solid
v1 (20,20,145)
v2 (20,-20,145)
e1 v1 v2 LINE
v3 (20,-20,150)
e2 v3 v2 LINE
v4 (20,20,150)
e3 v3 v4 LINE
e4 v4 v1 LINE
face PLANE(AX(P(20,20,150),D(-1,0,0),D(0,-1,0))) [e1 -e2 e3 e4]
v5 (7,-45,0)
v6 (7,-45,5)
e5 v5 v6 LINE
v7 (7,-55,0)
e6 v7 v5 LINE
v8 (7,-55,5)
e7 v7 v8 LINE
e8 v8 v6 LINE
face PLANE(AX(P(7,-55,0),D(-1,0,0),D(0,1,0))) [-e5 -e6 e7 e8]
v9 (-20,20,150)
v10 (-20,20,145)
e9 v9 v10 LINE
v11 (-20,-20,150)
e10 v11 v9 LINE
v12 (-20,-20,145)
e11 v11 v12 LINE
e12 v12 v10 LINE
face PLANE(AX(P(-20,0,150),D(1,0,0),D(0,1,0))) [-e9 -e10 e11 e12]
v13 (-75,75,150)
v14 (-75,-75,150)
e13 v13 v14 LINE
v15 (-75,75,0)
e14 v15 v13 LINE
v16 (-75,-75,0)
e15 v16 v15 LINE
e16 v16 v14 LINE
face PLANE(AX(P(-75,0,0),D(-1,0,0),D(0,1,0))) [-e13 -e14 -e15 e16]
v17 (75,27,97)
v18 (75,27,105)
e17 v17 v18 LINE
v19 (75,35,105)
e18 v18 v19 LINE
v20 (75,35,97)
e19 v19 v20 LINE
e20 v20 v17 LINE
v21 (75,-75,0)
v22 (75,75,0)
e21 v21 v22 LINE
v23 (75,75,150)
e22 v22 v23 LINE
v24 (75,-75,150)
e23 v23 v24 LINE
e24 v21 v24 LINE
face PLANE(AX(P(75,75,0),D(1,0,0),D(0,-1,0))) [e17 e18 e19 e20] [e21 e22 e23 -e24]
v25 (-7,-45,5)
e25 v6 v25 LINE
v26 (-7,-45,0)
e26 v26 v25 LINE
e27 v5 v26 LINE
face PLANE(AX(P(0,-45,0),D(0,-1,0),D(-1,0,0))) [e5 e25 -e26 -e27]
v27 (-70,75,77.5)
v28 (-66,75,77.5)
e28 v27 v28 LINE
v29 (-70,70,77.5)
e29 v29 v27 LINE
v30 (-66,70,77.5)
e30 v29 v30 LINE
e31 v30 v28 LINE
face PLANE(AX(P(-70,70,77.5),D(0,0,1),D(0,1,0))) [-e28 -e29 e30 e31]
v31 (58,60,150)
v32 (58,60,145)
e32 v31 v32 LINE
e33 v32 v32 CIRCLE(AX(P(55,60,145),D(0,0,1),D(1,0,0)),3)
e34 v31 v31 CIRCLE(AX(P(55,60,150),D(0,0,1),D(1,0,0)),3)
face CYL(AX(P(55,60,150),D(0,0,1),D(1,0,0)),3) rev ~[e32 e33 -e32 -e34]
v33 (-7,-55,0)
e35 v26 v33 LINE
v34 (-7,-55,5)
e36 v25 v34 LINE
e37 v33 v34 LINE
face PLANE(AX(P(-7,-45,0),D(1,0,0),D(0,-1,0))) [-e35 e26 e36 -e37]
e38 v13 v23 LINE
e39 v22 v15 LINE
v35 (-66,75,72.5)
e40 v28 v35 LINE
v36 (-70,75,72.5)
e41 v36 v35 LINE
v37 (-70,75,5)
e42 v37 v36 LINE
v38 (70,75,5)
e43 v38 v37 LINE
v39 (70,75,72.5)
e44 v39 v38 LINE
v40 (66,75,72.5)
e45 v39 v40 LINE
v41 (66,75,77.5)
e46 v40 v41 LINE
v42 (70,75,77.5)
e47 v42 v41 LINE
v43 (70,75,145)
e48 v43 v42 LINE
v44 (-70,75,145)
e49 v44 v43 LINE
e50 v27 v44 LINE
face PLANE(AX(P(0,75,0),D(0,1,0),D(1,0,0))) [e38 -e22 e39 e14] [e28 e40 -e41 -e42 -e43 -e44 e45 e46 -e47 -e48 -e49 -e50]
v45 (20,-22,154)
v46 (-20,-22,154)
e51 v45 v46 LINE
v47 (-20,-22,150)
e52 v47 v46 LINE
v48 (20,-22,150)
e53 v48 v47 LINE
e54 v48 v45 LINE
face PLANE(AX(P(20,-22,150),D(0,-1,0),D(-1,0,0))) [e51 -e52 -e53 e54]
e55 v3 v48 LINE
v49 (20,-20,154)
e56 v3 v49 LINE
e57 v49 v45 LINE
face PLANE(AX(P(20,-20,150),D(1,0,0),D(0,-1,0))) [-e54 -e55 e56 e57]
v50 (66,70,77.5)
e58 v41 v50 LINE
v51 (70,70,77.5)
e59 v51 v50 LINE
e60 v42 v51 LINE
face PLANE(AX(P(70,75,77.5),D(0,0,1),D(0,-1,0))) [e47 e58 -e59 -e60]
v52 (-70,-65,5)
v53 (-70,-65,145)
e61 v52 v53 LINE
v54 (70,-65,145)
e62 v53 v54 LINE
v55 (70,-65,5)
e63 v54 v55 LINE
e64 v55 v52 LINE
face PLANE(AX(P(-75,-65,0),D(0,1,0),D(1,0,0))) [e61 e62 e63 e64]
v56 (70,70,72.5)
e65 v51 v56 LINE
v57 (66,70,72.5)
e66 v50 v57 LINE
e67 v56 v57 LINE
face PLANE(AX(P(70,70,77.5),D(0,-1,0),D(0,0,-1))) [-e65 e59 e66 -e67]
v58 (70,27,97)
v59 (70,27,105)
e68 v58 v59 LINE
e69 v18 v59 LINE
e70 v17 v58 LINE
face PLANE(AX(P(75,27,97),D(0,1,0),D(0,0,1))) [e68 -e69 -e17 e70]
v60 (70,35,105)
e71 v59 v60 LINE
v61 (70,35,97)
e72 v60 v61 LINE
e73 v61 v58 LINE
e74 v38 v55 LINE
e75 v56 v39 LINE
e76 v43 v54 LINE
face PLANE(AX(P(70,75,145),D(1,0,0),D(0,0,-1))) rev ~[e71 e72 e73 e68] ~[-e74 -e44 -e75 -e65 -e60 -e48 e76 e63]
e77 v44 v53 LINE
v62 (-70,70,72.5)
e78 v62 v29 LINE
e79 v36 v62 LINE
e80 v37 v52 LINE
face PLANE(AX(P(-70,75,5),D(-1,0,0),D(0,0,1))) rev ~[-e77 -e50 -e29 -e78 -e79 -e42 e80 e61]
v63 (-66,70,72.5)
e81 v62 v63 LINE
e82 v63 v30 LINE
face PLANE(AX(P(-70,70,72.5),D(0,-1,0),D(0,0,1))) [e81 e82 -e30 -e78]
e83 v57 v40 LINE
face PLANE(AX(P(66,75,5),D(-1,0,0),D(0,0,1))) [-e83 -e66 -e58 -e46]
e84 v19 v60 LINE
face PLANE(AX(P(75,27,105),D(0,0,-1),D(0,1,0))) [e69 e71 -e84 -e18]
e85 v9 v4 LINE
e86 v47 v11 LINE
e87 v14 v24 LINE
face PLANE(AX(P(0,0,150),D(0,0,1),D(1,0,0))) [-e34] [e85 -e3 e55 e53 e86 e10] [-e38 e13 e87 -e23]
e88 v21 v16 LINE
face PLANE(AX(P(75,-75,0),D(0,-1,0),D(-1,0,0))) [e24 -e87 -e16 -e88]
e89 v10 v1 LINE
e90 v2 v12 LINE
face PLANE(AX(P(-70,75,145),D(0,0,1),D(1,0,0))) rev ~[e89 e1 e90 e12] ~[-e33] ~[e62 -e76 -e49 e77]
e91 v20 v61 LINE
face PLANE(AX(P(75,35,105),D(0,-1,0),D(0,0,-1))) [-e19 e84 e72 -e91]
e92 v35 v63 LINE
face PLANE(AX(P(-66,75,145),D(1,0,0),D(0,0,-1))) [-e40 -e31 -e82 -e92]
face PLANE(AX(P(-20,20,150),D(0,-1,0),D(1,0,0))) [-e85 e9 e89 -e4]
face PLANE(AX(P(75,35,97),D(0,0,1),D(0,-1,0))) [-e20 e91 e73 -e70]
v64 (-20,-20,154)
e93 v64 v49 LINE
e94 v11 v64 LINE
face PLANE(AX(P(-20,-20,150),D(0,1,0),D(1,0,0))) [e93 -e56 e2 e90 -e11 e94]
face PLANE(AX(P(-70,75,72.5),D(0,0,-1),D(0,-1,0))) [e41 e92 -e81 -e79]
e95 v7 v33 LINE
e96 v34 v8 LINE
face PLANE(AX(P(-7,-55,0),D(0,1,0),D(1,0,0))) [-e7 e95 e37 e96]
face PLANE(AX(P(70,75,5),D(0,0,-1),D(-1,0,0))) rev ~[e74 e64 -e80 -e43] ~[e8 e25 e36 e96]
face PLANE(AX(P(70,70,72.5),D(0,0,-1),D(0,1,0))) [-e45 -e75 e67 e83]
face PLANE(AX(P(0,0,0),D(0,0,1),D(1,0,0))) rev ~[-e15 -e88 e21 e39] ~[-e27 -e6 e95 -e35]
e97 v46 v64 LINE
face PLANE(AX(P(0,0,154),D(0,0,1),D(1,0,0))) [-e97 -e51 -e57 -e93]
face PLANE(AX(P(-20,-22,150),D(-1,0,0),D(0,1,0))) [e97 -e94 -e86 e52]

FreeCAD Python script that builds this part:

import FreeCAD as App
import Part
import Sketcher

V = App.Vector
Q = App.Units.Quantity


def add_polygon(sketch, points):
    """Adds a closed chain of lines whose ends are joined by coincident constraints."""
    first, n = sketch.GeometryCount, len(points)
    for a, b in zip(points, points[1:] + points[:1]):
        sketch.addGeometry(Part.LineSegment(App.Vector(*a, 0), App.Vector(*b, 0)), False)
    for i in range(n):
        sketch.addConstraint(Sketcher.Constraint("Coincident", first + i, 2, first + (i + 1) % n, 1))

doc = App.newDocument("Part")
params = doc.addObject("Spreadsheet::Sheet", "Params")
for row, (alias, value) in enumerate([
    ("sketch1_width", "150 mm"),
    ("pad1_length", "150 mm"),
    ("sketch2_width", "140 mm"),
    ("pocket1_length", "140 mm"),
    ("sketch3_diameter", "6 mm"),
    ("sketch3_width", "40 mm"),
    ("pocket2_length", "10 mm"),
    ("sketch4_width", "8 mm"),
    ("pocket3_length", "10 mm"),
    ("sketch5_width", "40 mm"),
    ("sketch5_height", "2 mm"),
    ("pad2_length", "4 mm"),
    ("sketch6_width", "5 mm"),
    ("pad3_length", "4 mm"),
    ("sketch7_width", "5 mm"),
    ("pad4_length", "4 mm"),
    ("sketch8_width", "14 mm"),
    ("sketch8_height", "10 mm"),
    ("pocket4_length", "10 mm"),
], start=1):
    params.set(f"A{row}", alias)
    params.set(f"B{row}", "=" + value)
    params.setAlias(f"B{row}", alias)

body = doc.addObject("PartDesign::Body", "Body")

# Sketch on XY plane
sketch1 = doc.addObject("Sketcher::SketchObject", "Sketch")
body.addObject(sketch1)
sketch1.AttachmentSupport = (doc.XY_Plane, [""])
sketch1.MapMode = "FlatFace"
add_polygon(sketch1, [(75, 75), (-75, 75), (-75, -75), (75, -75)])  # lines 0-3
sketch1.addConstraint([
    Sketcher.Constraint("Horizontal", 0),
    Sketcher.Constraint("Vertical", 1),
    Sketcher.Constraint("Horizontal", 2),
    Sketcher.Constraint("Vertical", 3),
    Sketcher.Constraint("Symmetric", 0, 2, 2, 2, -1, 1),
    Sketcher.Constraint("Equal", 2, 1),
    Sketcher.Constraint("DistanceX", 0, 2, 0, 1, Q("150 mm")),
])
sketch1.setExpression("Constraints[10]", "Params.sketch1_width")
pad1 = doc.addObject("PartDesign::Pad", "Pad")
body.addObject(pad1)
pad1.Profile = sketch1
pad1.setExpression("Length", "Params.pad1_length")

# Sketch on XZ plane
sketch2 = doc.addObject("Sketcher::SketchObject", "Sketch001")
body.addObject(sketch2)
sketch2.AttachmentSupport = (doc.XZ_Plane, [""])
sketch2.MapMode = "FlatFace"
sketch2.AttachmentOffset = App.Placement(V(0, 0, -75), App.Rotation())
add_polygon(sketch2, [(-70, 5), (-70, 145), (70, 145), (70, 5)])  # lines 0-3
sketch2.addConstraint([
    Sketcher.Constraint("Vertical", 0),
    Sketcher.Constraint("Horizontal", 1),
    Sketcher.Constraint("Vertical", 2),
    Sketcher.Constraint("Horizontal", 3),
    Sketcher.Constraint("Equal", 3, 0),
    Sketcher.Constraint("DistanceX", 1, 1, 1, 2, Q("140 mm")),
    Sketcher.Constraint("DistanceY", -1, 1, 2, 2, Q("5 mm")),
    Sketcher.Constraint("DistanceX", 0, 2, -1, 1, Q("70 mm")),
])
sketch2.setExpression("Constraints[9]", "Params.sketch2_width")
pocket1 = doc.addObject("PartDesign::Pocket", "Pocket")
body.addObject(pocket1)
pocket1.Profile = sketch2
pocket1.setExpression("Length", "Params.pocket1_length")
pocket1.Reversed = True

# Sketch on XY plane
sketch3 = doc.addObject("Sketcher::SketchObject", "Sketch002")
body.addObject(sketch3)
sketch3.AttachmentSupport = (doc.XY_Plane, [""])
sketch3.MapMode = "FlatFace"
sketch3.AttachmentOffset = App.Placement(V(0, 0, 150), App.Rotation())
add_polygon(sketch3, [(-20, 20), (-20, -20), (20, -20), (20, 20)])  # lines 0-3
sketch3.addGeometry(Part.Circle(V(55, 60, 0), V(0, 0, 1), 3), False)  # 4
sketch3.addConstraint([
    Sketcher.Constraint("Vertical", 0),
    Sketcher.Constraint("Horizontal", 1),
    Sketcher.Constraint("Vertical", 2),
    Sketcher.Constraint("Horizontal", 3),
    Sketcher.Constraint("Symmetric", 0, 2, 2, 2, -1, 1),
    Sketcher.Constraint("Equal", 3, 0),
    Sketcher.Constraint("Diameter", 4, Q("6 mm")),
    Sketcher.Constraint("DistanceX", 1, 1, 1, 2, Q("40 mm")),
    Sketcher.Constraint("DistanceX", -1, 1, 4, 3, Q("55 mm")),
    Sketcher.Constraint("DistanceY", 2, 2, 4, 3, Q("40 mm")),
])
sketch3.setExpression("Constraints[10]", "Params.sketch3_diameter")
sketch3.setExpression("Constraints[11]", "Params.sketch3_width")
pocket2 = doc.addObject("PartDesign::Pocket", "Pocket001")
body.addObject(pocket2)
pocket2.Profile = sketch3
pocket2.setExpression("Length", "Params.pocket2_length")

# Sketch on YZ plane
sketch4 = doc.addObject("Sketcher::SketchObject", "Sketch003")
body.addObject(sketch4)
sketch4.AttachmentSupport = (doc.YZ_Plane, [""])
sketch4.MapMode = "FlatFace"
sketch4.AttachmentOffset = App.Placement(V(0, 0, 75), App.Rotation())
add_polygon(sketch4, [(35, 97), (35, 105), (27, 105), (27, 97)])  # lines 0-3
sketch4.addConstraint([
    Sketcher.Constraint("Vertical", 0),
    Sketcher.Constraint("Horizontal", 1),
    Sketcher.Constraint("Vertical", 2),
    Sketcher.Constraint("Horizontal", 3),
    Sketcher.Constraint("Equal", 3, 0),
    Sketcher.Constraint("DistanceX", 1, 2, 1, 1, Q("8 mm")),
    Sketcher.Constraint("DistanceX", -1, 1, 0, 2, Q("35 mm")),
    Sketcher.Constraint("DistanceY", -1, 1, 0, 2, Q("105 mm")),
])
sketch4.setExpression("Constraints[9]", "Params.sketch4_width")
pocket3 = doc.addObject("PartDesign::Pocket", "Pocket002")
body.addObject(pocket3)
pocket3.Profile = sketch4
pocket3.setExpression("Length", "Params.pocket3_length")

# Sketch on XY plane
sketch5 = doc.addObject("Sketcher::SketchObject", "Sketch004")
body.addObject(sketch5)
sketch5.AttachmentSupport = (doc.XY_Plane, [""])
sketch5.MapMode = "FlatFace"
sketch5.AttachmentOffset = App.Placement(V(0, 0, 150), App.Rotation())
add_polygon(sketch5, [(20, -20), (-20, -20), (-20, -22), (20, -22)])  # lines 0-3
sketch5.addConstraint([
    Sketcher.Constraint("Horizontal", 0),
    Sketcher.Constraint("Vertical", 1),
    Sketcher.Constraint("Horizontal", 2),
    Sketcher.Constraint("Vertical", 3),
    Sketcher.Constraint("DistanceX", 0, 2, 0, 1, Q("40 mm")),
    Sketcher.Constraint("DistanceY", 1, 2, 1, 1, Q("2 mm")),
    Sketcher.Constraint("DistanceX", 0, 2, -1, 1, Q("20 mm")),
    Sketcher.Constraint("DistanceY", 0, 2, -1, 1, Q("20 mm")),
])
sketch5.setExpression("Constraints[8]", "Params.sketch5_width")
sketch5.setExpression("Constraints[9]", "Params.sketch5_height")
pad2 = doc.addObject("PartDesign::Pad", "Pad001")
body.addObject(pad2)
pad2.Profile = sketch5
pad2.setExpression("Length", "Params.pad2_length")

# Sketch on YZ plane
sketch6 = doc.addObject("Sketcher::SketchObject", "Sketch005")
body.addObject(sketch6)
sketch6.AttachmentSupport = (doc.YZ_Plane, [""])
sketch6.MapMode = "FlatFace"
sketch6.AttachmentOffset = App.Placement(V(0, 0, -70), App.Rotation())
add_polygon(sketch6, [(75, 72), (75, 78), (70, 78), (70, 72)])  # lines 0-3
sketch6.addConstraint([
    Sketcher.Constraint("Vertical", 0),
    Sketcher.Constraint("Horizontal", 1),
    Sketcher.Constraint("Vertical", 2),
    Sketcher.Constraint("Horizontal", 3),
    Sketcher.Constraint("Equal", 3, 0),
    Sketcher.Constraint("DistanceX", 1, 2, 1, 1, Q("5 mm")),
    Sketcher.Constraint("DistanceX", -1, 1, 0, 2, Q("75 mm")),
    Sketcher.Constraint("DistanceY", -1, 1, 0, 2, Q("77.5 mm")),
])
sketch6.setExpression("Constraints[9]", "Params.sketch6_width")
pad3 = doc.addObject("PartDesign::Pad", "Pad002")
body.addObject(pad3)
pad3.Profile = sketch6
pad3.setExpression("Length", "Params.pad3_length")

# Sketch on YZ plane
sketch7 = doc.addObject("Sketcher::SketchObject", "Sketch006")
body.addObject(sketch7)
sketch7.AttachmentSupport = (doc.YZ_Plane, [""])
sketch7.MapMode = "FlatFace"
sketch7.AttachmentOffset = App.Placement(V(0, 0, 70), App.Rotation())
add_polygon(sketch7, [(75, 78), (75, 72), (70, 72), (70, 78)])  # lines 0-3
sketch7.addConstraint([
    Sketcher.Constraint("Vertical", 0),
    Sketcher.Constraint("Horizontal", 1),
    Sketcher.Constraint("Vertical", 2),
    Sketcher.Constraint("Horizontal", 3),
    Sketcher.Constraint("Equal", 3, 0),
    Sketcher.Constraint("DistanceX", 1, 2, 1, 1, Q("5 mm")),
    Sketcher.Constraint("DistanceX", -1, 1, 0, 2, Q("75 mm")),
    Sketcher.Constraint("DistanceY", -1, 1, 0, 2, Q("72.5 mm")),
])
sketch7.setExpression("Constraints[9]", "Params.sketch7_width")
pad4 = doc.addObject("PartDesign::Pad", "Pad003")
body.addObject(pad4)
pad4.Profile = sketch7
pad4.setExpression("Length", "Params.pad4_length")
pad4.Reversed = True

# Sketch on XY plane
sketch8 = doc.addObject("Sketcher::SketchObject", "Sketch007")
body.addObject(sketch8)
sketch8.AttachmentSupport = (doc.XY_Plane, [""])
sketch8.MapMode = "FlatFace"
add_polygon(sketch8, [(-7, -45), (7, -45), (7, -55), (-7, -55)])  # lines 0-3
sketch8.addConstraint([
    Sketcher.Constraint("Horizontal", 0),
    Sketcher.Constraint("Vertical", 1),
    Sketcher.Constraint("Horizontal", 2),
    Sketcher.Constraint("Vertical", 3),
    Sketcher.Constraint("DistanceX", 0, 1, 0, 2, Q("14 mm")),
    Sketcher.Constraint("DistanceY", 1, 2, 1, 1, Q("10 mm")),
    Sketcher.Constraint("DistanceX", -1, 1, 0, 2, Q("7 mm")),
    Sketcher.Constraint("DistanceY", 0, 2, -1, 1, Q("45 mm")),
])
sketch8.setExpression("Constraints[8]", "Params.sketch8_width")
sketch8.setExpression("Constraints[9]", "Params.sketch8_height")
pocket4 = doc.addObject("PartDesign::Pocket", "Pocket003")
body.addObject(pocket4)
pocket4.Profile = sketch8
pocket4.setExpression("Length", "Params.pocket4_length")
pocket4.Reversed = True

doc.recompute()
